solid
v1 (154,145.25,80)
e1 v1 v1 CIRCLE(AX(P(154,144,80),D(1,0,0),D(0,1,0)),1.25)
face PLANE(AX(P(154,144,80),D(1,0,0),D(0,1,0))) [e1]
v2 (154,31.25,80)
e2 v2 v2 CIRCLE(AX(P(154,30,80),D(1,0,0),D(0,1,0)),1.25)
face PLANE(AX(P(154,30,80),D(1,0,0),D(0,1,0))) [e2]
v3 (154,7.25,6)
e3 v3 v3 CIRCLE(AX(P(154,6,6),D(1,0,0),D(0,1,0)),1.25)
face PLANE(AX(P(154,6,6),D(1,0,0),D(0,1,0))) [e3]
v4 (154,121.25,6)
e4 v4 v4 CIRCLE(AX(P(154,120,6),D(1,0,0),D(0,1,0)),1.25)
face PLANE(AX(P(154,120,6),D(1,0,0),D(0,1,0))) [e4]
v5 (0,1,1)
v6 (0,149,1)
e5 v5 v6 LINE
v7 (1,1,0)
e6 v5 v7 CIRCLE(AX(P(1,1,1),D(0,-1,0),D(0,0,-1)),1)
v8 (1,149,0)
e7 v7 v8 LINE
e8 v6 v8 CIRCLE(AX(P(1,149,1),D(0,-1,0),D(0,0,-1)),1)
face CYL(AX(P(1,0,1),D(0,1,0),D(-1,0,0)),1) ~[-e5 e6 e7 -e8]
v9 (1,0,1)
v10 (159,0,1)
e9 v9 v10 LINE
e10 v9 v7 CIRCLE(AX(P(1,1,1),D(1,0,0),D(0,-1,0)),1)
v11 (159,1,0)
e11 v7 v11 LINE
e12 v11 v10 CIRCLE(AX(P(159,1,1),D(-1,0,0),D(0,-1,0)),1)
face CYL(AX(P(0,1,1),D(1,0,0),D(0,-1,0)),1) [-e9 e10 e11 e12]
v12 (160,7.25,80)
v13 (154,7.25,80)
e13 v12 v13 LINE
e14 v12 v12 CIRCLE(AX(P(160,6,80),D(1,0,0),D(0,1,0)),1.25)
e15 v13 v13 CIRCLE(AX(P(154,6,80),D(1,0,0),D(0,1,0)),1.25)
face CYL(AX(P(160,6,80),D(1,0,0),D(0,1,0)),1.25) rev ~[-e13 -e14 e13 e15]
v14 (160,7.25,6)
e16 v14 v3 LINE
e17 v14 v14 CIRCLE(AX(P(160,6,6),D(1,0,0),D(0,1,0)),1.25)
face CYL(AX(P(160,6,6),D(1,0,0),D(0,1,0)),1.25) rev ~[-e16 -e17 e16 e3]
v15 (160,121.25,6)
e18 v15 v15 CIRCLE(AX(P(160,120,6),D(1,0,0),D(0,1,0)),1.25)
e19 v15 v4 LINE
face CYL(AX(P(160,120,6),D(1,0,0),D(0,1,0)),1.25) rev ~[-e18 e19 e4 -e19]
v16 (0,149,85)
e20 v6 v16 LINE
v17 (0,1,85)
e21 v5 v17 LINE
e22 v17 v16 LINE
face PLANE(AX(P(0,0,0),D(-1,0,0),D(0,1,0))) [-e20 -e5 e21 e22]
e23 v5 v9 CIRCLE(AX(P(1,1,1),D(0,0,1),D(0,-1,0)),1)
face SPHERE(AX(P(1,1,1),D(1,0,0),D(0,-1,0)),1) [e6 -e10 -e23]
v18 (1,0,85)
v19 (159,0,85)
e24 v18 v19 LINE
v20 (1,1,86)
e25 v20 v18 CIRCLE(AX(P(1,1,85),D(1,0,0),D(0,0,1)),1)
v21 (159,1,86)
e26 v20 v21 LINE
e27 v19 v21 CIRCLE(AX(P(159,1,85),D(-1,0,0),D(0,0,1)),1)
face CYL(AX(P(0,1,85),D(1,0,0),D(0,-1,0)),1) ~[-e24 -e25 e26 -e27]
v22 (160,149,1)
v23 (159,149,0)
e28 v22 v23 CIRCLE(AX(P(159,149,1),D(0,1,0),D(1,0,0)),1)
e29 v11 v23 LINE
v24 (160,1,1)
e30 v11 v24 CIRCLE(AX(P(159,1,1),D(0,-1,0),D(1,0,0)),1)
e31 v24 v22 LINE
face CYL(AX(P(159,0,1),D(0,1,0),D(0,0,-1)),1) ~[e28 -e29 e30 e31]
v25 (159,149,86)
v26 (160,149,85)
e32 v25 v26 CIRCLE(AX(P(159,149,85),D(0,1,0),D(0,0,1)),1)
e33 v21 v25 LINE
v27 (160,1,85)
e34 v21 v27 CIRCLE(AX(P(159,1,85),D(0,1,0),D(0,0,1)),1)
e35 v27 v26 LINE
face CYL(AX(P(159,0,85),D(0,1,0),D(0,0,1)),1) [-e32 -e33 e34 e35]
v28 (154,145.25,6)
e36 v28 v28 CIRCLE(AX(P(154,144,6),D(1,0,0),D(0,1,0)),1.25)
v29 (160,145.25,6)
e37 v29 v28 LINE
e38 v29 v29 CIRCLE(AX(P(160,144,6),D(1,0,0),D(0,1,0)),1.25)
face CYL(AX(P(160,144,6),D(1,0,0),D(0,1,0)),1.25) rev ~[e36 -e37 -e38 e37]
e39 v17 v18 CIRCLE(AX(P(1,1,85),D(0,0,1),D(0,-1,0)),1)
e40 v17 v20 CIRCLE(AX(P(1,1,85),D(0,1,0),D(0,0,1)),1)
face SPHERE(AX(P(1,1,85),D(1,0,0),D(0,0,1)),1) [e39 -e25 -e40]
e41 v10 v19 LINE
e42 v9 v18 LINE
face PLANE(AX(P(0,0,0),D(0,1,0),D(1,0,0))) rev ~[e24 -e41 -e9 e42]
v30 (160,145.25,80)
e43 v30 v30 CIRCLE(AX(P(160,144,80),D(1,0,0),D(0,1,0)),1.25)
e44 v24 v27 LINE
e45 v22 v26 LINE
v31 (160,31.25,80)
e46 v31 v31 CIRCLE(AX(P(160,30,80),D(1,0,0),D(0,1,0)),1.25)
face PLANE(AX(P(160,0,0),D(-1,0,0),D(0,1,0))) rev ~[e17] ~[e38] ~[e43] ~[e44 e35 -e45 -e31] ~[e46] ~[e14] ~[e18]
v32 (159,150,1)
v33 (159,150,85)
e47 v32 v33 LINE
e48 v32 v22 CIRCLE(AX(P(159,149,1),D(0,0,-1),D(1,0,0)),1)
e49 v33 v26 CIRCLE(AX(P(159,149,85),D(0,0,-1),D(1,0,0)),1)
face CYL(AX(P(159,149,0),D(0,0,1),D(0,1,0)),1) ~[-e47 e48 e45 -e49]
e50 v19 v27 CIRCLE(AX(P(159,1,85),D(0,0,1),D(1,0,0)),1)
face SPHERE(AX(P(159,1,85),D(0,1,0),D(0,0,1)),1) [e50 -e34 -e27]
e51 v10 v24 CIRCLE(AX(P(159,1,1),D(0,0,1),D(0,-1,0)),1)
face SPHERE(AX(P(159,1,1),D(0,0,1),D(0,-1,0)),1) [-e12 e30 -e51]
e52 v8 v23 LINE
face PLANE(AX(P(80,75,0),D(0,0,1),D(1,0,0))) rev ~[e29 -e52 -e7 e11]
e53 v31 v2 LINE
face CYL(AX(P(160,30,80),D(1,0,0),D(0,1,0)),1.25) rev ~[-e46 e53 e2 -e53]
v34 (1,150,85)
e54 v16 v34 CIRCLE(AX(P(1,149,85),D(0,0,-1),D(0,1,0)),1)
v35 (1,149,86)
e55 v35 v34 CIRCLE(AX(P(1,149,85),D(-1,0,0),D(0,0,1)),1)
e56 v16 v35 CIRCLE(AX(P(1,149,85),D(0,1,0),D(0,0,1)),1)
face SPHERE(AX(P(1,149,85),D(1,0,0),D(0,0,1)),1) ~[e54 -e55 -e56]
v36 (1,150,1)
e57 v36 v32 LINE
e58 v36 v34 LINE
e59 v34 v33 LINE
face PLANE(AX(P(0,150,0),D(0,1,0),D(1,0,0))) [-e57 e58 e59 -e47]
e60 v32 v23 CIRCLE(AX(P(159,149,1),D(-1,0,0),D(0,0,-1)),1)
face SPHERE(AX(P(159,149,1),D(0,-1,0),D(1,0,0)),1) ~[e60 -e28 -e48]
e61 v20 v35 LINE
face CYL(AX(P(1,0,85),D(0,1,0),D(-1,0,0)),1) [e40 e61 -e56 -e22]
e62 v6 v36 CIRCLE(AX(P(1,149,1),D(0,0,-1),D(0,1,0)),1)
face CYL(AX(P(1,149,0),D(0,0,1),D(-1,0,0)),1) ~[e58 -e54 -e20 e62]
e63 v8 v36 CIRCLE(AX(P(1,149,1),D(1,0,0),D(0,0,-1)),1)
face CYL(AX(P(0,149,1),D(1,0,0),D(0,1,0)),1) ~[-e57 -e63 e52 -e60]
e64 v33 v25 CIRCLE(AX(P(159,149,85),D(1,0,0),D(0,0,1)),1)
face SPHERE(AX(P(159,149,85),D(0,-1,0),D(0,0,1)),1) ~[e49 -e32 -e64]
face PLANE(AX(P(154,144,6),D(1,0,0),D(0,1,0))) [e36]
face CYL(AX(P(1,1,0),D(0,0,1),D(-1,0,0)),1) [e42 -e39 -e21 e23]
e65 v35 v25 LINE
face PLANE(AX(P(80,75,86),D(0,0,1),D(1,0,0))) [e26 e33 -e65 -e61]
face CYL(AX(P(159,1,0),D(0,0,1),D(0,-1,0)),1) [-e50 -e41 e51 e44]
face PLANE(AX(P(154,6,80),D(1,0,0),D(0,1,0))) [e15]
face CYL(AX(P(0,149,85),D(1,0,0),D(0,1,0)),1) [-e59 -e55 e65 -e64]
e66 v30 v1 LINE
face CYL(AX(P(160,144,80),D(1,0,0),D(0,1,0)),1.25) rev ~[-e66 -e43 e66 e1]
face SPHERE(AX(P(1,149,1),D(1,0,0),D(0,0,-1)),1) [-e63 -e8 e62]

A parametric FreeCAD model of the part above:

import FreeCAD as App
import Part
import Sketcher

V = App.Vector


def edges_at(feature, points):
    """Names of the edges that pass closest to the given points."""
    edges = feature.Shape.Edges
    near = lambda p: min(range(len(edges)), key=lambda i: edges[i].distToShape(Part.Vertex(*p))[0])
    return sorted({f"Edge{near(p) + 1}" for p in points})

doc = App.newDocument("Part")
body = doc.addObject("PartDesign::Body", "Body")

sketch1 = doc.addObject("Sketcher::SketchObject", "Sketch")
body.addObject(sketch1)
sketch1.AttachmentSupport = (doc.XY_Plane, [""])
sketch1.MapMode = "FlatFace"
sketch1.addGeometry(Part.LineSegment(V(0, 150, 0), V(0, 0, 0)), False)
sketch1.addGeometry(Part.LineSegment(V(0, 0, 0), V(160, 0, 0)), False)
sketch1.addGeometry(Part.LineSegment(V(160, 0, 0), V(160, 150, 0)), False)
sketch1.addGeometry(Part.LineSegment(V(160, 150, 0), V(0, 150, 0)), False)
sketch1.addConstraint(Sketcher.Constraint("Coincident", 0, 2, 1, 1))
sketch1.addConstraint(Sketcher.Constraint("Coincident", 1, 2, 2, 1))
sketch1.addConstraint(Sketcher.Constraint("Coincident", 2, 2, 3, 1))
sketch1.addConstraint(Sketcher.Constraint("Coincident", 3, 2, 0, 1))
sketch1.addConstraint(Sketcher.Constraint("Vertical", 0))
sketch1.addConstraint(Sketcher.Constraint("Horizontal", 1))
sketch1.addConstraint(Sketcher.Constraint("Vertical", 2))
sketch1.addConstraint(Sketcher.Constraint("Horizontal", 3))
sketch1.addConstraint(Sketcher.Constraint("Coincident", 0, 2, -1, 1))
sketch1.addConstraint(Sketcher.Constraint("DistanceX", 1, 1, 1, 2, 160.0))
sketch1.addConstraint(Sketcher.Constraint("DistanceY", 0, 2, 0, 1, 150.0))
pad1 = doc.addObject("PartDesign::Pad", "Pad")
body.addObject(pad1)
pad1.Profile = sketch1
pad1.Length = 86

sketch2 = doc.addObject("Sketcher::SketchObject", "Sketch001")
body.addObject(sketch2)
sketch2.AttachmentSupport = (doc.YZ_Plane, [""])
sketch2.MapMode = "FlatFace"
sketch2.AttachmentOffset = App.Placement(V(0, 0, 160), App.Rotation())
sketch2.addGeometry(Part.Circle(V(6, 80, 0), V(0, 0, 1), 1.2), False)
sketch2.addGeometry(Part.Circle(V(30, 80, 0), V(0, 0, 1), 1.2), False)
sketch2.addGeometry(Part.Circle(V(144, 80, 0), V(0, 0, 1), 1.2), False)
sketch2.addGeometry(Part.Circle(V(144, 6, 0), V(0, 0, 1), 1.2), False)
sketch2.addGeometry(Part.Circle(V(6, 6, 0), V(0, 0, 1), 1.2), False)
sketch2.addGeometry(Part.Circle(V(120, 6, 0), V(0, 0, 1), 1.2), False)
sketch2.addConstraint(Sketcher.Constraint("Equal", 0, 1))
sketch2.addConstraint(Sketcher.Constraint("Equal", 1, 2))
sketch2.addConstraint(Sketcher.Constraint("Equal", 2, 3))
sketch2.addConstraint(Sketcher.Constraint("Equal", 3, 4))
sketch2.addConstraint(Sketcher.Constraint("Equal", 4, 5))
sketch2.addConstraint(Sketcher.Constraint("Horizontal", 0, 3, 1, 3))
sketch2.addConstraint(Sketcher.Constraint("Horizontal", 1, 3, 2, 3))
sketch2.addConstraint(Sketcher.Constraint("Horizontal", 3, 3, 4, 3))
sketch2.addConstraint(Sketcher.Constraint("Horizontal", 4, 3, 5, 3))
sketch2.addConstraint(Sketcher.Constraint("Vertical", 2, 3, 3, 3))
sketch2.addConstraint(Sketcher.Constraint("Vertical", 0, 3, 4, 3))
sketch2.addConstraint(Sketcher.Constraint("Diameter", 0, 2.5))
sketch2.addConstraint(Sketcher.Constraint("DistanceX", -1, 1, 0, 3, 6.0))
sketch2.addConstraint(Sketcher.Constraint("DistanceY", -1, 1, 0, 3, 80.0))
sketch2.addConstraint(Sketcher.Constraint("DistanceX", -1, 1, 1, 3, 30.0))
sketch2.addConstraint(Sketcher.Constraint("DistanceX", -1, 1, 2, 3, 144.0))
sketch2.addConstraint(Sketcher.Constraint("DistanceY", -1, 1, 3, 3, 6.0))
sketch2.addConstraint(Sketcher.Constraint("DistanceX", -1, 1, 5, 3, 120.0))
pocket1 = doc.addObject("PartDesign::Pocket", "Pocket")
body.addObject(pocket1)
pocket1.Profile = sketch2
pocket1.Length = 6
doc.recompute()

fillet = doc.addObject("PartDesign::Fillet", "Fillet")
body.addObject(fillet)
fillet.Base = (pocket1, edges_at(pocket1, [
    (160, 75, 86),
    (80, 0, 86),
    (160, 0, 43),
    (80, 150, 86),
    (0, 75, 86),
    (80, 0, 0),
    (0, 0, 43),
    (160, 75, 0),
    (160, 150, 43),
    (80, 150, 0),
    (0, 75, 0),
    (0, 150, 43),
]))
fillet.Radius = 1

doc.recompute()
